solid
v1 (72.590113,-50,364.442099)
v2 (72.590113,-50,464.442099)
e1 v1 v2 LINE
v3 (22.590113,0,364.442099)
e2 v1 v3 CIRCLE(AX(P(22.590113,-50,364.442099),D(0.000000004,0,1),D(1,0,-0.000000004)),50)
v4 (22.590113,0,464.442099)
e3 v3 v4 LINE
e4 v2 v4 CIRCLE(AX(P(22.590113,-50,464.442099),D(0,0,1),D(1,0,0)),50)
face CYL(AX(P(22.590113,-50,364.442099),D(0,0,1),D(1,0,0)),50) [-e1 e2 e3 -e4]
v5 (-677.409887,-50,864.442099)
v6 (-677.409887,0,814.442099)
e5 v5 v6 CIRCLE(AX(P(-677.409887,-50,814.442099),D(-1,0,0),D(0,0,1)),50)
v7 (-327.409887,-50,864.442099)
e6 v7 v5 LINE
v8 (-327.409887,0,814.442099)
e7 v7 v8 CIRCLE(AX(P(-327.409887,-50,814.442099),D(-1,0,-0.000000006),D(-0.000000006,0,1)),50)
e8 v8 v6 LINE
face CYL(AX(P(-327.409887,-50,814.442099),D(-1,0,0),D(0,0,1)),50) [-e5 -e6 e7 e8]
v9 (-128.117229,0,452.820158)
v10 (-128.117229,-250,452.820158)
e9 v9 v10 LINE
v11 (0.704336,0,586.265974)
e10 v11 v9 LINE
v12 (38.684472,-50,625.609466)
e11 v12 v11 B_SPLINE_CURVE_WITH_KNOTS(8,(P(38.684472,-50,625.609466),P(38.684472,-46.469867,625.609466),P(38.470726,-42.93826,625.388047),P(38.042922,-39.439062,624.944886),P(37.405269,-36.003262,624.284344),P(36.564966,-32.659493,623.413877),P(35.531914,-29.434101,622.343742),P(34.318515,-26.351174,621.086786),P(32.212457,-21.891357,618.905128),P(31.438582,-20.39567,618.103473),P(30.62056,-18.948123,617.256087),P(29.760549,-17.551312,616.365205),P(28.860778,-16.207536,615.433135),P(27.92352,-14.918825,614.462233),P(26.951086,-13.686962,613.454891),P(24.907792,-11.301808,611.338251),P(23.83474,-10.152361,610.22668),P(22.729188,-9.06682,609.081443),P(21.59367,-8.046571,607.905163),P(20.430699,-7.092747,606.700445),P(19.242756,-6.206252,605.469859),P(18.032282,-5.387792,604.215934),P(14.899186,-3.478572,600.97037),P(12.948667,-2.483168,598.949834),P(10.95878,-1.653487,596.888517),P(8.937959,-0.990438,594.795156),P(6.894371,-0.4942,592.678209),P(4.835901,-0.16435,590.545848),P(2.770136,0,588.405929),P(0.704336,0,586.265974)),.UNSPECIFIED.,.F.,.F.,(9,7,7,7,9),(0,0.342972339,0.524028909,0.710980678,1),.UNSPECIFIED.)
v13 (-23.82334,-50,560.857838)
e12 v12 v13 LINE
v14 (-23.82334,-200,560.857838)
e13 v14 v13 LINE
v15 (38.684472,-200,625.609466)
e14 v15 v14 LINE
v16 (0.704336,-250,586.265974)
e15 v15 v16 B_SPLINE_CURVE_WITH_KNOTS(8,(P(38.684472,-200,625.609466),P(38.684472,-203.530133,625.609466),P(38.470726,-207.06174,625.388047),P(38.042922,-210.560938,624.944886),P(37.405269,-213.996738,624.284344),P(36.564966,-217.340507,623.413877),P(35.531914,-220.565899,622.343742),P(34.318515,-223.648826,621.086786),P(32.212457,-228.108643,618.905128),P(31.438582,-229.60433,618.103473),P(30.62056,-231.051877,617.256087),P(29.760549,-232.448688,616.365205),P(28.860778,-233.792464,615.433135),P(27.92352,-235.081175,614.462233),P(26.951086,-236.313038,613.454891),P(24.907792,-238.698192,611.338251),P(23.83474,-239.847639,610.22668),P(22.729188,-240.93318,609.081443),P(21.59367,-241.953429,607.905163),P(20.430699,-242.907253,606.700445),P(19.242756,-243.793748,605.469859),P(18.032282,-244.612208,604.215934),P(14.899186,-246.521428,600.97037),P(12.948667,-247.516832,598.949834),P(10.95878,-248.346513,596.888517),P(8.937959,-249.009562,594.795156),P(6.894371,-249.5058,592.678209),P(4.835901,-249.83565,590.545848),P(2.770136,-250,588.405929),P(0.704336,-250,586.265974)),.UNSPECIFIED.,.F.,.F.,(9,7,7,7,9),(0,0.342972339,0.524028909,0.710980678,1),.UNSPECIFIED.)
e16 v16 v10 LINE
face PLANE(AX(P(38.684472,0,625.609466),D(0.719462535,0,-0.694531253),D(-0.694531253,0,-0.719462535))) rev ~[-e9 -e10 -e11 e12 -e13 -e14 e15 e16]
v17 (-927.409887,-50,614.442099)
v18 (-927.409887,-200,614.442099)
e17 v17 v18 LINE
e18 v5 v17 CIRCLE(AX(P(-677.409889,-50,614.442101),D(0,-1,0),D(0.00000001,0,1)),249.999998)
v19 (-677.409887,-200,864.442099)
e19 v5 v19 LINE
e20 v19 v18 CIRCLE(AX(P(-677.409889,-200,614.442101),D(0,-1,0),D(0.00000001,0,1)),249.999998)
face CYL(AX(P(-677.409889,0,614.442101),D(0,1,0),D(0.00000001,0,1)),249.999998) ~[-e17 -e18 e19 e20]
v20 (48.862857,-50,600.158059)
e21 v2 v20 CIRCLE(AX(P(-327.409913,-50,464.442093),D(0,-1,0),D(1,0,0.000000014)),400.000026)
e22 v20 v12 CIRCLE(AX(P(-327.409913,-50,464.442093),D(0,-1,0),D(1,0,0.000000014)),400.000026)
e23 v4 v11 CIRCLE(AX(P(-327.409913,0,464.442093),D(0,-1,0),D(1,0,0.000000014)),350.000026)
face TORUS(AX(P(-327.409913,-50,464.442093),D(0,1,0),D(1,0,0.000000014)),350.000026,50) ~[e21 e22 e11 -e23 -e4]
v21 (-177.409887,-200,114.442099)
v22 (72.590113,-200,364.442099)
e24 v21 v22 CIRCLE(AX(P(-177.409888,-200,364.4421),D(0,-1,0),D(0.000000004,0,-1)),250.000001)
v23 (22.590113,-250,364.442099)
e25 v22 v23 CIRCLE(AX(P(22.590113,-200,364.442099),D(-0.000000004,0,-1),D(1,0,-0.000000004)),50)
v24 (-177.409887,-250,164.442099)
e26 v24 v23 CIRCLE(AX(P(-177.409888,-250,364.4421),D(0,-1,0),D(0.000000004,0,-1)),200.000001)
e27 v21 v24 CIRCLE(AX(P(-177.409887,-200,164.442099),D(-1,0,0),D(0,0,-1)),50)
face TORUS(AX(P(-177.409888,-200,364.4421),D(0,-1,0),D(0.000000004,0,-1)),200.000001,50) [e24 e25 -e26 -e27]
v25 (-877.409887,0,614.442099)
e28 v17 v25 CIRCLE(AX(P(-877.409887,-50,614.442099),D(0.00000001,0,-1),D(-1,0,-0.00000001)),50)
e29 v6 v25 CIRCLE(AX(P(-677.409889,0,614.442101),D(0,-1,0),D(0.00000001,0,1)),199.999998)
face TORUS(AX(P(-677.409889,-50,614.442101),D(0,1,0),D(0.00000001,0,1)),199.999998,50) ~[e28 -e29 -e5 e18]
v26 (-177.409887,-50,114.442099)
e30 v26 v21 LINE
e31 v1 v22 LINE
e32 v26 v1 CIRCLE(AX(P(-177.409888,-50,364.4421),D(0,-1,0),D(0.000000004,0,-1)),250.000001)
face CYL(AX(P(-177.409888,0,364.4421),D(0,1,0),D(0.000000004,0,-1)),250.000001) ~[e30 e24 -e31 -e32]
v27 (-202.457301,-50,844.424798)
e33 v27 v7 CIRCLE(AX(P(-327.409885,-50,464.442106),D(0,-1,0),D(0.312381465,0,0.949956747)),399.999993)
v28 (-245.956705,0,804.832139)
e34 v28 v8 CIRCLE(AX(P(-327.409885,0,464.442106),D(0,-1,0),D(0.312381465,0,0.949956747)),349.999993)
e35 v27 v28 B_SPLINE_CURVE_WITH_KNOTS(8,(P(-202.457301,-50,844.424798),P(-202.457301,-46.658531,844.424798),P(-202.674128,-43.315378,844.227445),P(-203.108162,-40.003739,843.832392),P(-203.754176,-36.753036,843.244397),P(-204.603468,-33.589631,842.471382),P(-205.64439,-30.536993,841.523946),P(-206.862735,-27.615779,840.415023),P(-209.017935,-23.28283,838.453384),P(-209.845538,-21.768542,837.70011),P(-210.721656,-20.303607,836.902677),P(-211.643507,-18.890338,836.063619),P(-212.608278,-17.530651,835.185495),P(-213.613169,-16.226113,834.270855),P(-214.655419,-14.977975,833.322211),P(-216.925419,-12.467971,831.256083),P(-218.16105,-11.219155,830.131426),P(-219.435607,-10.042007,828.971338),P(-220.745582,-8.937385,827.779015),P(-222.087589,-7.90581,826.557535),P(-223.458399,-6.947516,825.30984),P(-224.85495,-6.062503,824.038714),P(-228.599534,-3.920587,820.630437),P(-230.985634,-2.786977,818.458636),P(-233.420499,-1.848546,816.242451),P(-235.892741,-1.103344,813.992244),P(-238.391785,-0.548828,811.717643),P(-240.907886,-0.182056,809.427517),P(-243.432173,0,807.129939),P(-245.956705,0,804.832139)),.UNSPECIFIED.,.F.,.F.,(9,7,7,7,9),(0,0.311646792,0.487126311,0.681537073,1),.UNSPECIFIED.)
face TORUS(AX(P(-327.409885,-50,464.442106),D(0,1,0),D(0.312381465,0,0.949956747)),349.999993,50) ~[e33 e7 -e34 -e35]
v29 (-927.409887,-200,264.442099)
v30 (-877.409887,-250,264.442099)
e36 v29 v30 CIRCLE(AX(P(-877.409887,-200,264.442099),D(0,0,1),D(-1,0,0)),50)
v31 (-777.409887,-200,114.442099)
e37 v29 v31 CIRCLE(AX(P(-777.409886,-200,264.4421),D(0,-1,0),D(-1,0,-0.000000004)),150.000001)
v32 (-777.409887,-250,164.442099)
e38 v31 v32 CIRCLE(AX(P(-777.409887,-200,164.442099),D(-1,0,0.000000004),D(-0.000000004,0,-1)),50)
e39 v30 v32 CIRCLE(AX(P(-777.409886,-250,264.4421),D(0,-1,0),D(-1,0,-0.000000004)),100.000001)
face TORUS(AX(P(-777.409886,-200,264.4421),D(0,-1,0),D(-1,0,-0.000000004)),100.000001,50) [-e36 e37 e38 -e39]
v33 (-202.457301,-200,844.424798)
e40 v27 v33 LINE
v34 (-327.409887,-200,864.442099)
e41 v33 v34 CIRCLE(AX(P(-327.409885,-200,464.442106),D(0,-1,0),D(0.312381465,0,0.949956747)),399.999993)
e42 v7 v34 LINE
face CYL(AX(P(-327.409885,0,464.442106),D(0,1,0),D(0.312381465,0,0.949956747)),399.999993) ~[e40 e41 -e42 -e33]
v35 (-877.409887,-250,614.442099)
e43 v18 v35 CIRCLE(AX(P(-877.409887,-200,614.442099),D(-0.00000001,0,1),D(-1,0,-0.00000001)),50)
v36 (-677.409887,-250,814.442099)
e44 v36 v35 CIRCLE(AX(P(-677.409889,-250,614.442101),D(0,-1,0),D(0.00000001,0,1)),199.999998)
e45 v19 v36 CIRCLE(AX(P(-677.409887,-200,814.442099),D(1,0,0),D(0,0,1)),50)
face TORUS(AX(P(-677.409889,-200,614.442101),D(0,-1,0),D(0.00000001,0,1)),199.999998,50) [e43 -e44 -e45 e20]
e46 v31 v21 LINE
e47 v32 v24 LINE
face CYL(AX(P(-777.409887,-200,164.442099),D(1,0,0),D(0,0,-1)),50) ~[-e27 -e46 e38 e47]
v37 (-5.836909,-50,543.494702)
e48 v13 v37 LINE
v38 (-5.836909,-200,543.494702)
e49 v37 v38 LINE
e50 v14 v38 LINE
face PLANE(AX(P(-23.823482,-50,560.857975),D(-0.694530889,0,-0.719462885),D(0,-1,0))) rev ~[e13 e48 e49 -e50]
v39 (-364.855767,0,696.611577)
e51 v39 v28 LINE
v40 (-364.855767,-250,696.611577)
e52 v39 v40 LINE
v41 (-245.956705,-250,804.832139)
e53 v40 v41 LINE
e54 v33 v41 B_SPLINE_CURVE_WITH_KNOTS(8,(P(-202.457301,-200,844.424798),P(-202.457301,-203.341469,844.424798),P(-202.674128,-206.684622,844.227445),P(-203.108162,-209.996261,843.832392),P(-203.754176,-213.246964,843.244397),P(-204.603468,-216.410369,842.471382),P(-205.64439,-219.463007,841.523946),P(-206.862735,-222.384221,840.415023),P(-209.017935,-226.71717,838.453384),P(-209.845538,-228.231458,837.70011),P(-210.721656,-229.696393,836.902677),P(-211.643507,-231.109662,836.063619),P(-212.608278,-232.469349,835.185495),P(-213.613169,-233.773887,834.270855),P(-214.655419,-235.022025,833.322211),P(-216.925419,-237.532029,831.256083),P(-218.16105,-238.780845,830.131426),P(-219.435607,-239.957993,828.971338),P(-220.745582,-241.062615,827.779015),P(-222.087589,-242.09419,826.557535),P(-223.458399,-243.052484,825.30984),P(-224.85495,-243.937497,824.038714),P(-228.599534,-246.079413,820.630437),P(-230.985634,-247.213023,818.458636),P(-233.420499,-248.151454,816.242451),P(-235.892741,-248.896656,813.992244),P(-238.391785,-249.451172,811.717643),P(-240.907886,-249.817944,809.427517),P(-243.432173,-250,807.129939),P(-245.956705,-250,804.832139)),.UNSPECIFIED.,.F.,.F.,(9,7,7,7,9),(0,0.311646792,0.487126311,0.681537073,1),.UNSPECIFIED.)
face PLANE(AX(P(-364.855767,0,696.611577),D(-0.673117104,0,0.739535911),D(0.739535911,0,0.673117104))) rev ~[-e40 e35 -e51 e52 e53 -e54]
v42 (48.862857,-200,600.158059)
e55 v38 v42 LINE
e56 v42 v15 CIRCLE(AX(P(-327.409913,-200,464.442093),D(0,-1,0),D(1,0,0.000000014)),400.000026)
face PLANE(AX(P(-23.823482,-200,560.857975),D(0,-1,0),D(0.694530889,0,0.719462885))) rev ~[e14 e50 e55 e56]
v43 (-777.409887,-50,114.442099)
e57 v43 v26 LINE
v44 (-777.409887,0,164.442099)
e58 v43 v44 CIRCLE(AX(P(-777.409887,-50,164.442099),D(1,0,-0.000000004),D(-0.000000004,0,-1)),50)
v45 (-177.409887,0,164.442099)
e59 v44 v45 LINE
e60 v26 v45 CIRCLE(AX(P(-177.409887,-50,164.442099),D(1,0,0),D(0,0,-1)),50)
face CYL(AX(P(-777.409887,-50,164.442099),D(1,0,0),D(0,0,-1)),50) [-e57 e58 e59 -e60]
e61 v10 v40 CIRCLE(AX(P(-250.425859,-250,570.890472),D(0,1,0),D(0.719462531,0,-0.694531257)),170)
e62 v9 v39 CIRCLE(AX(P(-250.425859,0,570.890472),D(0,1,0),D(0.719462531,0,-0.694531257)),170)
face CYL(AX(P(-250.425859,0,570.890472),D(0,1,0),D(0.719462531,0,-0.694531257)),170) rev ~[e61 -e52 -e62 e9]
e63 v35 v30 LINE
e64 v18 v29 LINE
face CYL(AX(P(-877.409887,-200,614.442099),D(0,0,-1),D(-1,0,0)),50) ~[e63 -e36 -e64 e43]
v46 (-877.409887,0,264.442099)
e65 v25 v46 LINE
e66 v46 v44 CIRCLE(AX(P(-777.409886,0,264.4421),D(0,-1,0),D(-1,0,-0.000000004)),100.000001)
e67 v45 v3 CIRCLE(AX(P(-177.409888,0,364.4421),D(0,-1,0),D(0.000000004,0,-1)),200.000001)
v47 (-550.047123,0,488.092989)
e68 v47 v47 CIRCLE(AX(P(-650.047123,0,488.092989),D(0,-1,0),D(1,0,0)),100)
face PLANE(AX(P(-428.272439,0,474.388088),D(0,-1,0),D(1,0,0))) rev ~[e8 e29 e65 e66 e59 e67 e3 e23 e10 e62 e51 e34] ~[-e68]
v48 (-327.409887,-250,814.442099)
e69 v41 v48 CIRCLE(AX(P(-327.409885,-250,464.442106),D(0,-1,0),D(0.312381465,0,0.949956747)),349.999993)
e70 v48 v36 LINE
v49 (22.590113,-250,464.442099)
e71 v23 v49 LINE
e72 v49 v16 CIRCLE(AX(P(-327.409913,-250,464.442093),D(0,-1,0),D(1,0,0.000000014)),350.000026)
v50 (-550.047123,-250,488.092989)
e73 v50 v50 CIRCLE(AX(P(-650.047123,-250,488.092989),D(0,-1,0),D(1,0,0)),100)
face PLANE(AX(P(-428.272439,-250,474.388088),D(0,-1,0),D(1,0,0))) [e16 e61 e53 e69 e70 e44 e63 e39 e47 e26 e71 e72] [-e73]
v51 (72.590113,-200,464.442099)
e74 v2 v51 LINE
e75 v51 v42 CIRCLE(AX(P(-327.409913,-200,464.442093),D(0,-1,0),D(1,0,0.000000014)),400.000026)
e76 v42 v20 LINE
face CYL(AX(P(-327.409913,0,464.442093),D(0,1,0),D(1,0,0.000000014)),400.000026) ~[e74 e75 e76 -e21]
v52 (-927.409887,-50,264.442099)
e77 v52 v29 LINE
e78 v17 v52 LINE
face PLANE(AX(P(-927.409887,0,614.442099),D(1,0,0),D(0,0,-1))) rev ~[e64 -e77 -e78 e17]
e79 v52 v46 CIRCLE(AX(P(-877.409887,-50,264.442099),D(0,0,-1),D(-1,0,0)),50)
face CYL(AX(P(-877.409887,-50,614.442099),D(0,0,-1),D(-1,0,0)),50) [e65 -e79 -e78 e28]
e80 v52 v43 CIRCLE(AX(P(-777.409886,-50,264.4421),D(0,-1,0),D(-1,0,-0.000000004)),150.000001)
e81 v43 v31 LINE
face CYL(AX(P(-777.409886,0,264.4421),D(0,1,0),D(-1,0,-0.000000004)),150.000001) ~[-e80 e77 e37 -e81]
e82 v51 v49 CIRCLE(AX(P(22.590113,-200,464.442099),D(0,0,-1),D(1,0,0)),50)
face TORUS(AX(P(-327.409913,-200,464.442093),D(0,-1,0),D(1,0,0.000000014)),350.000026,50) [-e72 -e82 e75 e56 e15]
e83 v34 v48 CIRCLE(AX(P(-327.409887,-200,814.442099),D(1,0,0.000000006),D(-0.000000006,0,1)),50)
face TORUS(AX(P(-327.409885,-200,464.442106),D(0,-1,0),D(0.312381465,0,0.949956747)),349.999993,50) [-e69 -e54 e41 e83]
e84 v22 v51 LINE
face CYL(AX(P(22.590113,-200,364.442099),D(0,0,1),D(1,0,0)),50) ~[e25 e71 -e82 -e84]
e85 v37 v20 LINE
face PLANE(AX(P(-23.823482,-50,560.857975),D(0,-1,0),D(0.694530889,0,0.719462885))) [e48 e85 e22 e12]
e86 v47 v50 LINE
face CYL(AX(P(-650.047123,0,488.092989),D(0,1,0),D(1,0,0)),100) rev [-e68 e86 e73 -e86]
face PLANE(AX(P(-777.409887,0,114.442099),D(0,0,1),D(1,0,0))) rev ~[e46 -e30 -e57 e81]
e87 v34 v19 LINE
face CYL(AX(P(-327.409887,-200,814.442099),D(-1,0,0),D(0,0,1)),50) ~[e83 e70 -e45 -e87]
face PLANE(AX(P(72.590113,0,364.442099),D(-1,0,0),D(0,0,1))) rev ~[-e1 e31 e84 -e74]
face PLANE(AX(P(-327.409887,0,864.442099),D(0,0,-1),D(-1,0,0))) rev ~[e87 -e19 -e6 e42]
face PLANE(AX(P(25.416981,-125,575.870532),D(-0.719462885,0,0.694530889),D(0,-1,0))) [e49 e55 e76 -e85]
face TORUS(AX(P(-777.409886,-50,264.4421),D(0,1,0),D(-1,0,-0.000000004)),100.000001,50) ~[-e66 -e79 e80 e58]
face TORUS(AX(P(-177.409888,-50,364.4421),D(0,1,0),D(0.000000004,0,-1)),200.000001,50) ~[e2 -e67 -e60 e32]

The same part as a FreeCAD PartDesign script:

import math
import FreeCAD as App
import Part
import Sketcher
Q = App.Units.Quantity


def edges_at(feature, points):
    """Names of the edges that pass closest to the given points."""
    edges = feature.Shape.Edges
    near = lambda p: min(range(len(edges)), key=lambda i: edges[i].distToShape(Part.Vertex(*p))[0])
    return sorted({f"Edge{near(p) + 1}" for p in points})


def add_polygon(sketch, points):
    """Adds a closed chain of lines whose ends are joined by coincident constraints."""
    first, n = sketch.GeometryCount, len(points)
    for a, b in zip(points, points[1:] + points[:1]):
        sketch.addGeometry(Part.LineSegment(App.Vector(*a, 0), App.Vector(*b, 0)), False)
    for i in range(n):
        sketch.addConstraint(Sketcher.Constraint("Coincident", first + i, 2, first + (i + 1) % n, 1))

doc = App.newDocument("Part")
body = doc.addObject("PartDesign::Body", "Body")

# Sketch on XZ plane
sketch1 = body.newObject("Sketcher::SketchObject", "Sketch")
sketch1.AttachmentSupport = (doc.getObject("XZ_Plane"), [""])
sketch1.MapMode = "FlatFace"
sketch1.addGeometry([
    Part.LineSegment(App.Vector(-327, 864, 0), App.Vector(-677, 864, 0)),  # 0
    Part.ArcOfCircle(Part.Circle(App.Vector(-677, 614, 0), App.Vector(0, 0, 1), 250), math.radians(90), math.radians(180)),  # 1
    Part.LineSegment(App.Vector(-927, 614, 0), App.Vector(-927, 264, 0)),  # 2
    Part.ArcOfCircle(Part.Circle(App.Vector(-777, 264, 0), App.Vector(0, 0, 1), 150), math.radians(-180), math.radians(-90)),  # 3
    Part.LineSegment(App.Vector(-777, 114, 0), App.Vector(-177, 114, 0)),  # 4
    Part.ArcOfCircle(Part.Circle(App.Vector(-177, 364, 0), App.Vector(0, 0, 1), 250), math.radians(-90), math.radians(0)),  # 5
    Part.LineSegment(App.Vector(73, 364, 0), App.Vector(73, 464, 0)),  # 6
    Part.ArcOfCircle(Part.Circle(App.Vector(-327, 464, 0), App.Vector(0, 0, 1), 400), math.radians(0), math.radians(24)),  # 7
    Part.LineSegment(App.Vector(39, 626, 0), App.Vector(-128, 453, 0)),  # 8
    Part.ArcOfCircle(Part.Circle(App.Vector(-250, 571, 0), App.Vector(0, 0, 1), 170), math.radians(132), math.radians(316)),  # 9
    Part.LineSegment(App.Vector(-365, 697, 0), App.Vector(-202, 844, 0)),  # 10
    Part.ArcOfCircle(Part.Circle(App.Vector(-327, 464, 0), App.Vector(0, 0, 1), 400), math.radians(71.8), math.radians(90)),  # 11
    Part.Circle(App.Vector(-650, 488, 0), App.Vector(0, 0, 1), 100),  # 12
], False)
sketch1.addConstraint([
    Sketcher.Constraint("Tangent", 0, 2, 1, 1),
    Sketcher.Constraint("Tangent", 1, 2, 2, 1),
    Sketcher.Constraint("Tangent", 2, 2, 3, 1),
    Sketcher.Constraint("Tangent", 3, 2, 4, 1),
    Sketcher.Constraint("Tangent", 4, 2, 5, 1),
    Sketcher.Constraint("Tangent", 5, 2, 6, 1),
    Sketcher.Constraint("Tangent", 6, 2, 7, 1),
    Sketcher.Constraint("Coincident", 7, 2, 8, 1),
    Sketcher.Constraint("Tangent", 8, 2, 9, 2),
    Sketcher.Constraint("Tangent", 9, 1, 10, 1),
    Sketcher.Constraint("Coincident", 10, 2, 11, 1),
    Sketcher.Constraint("Tangent", 11, 2, 0, 1),
    Sketcher.Constraint("Horizontal", 0),
    Sketcher.Constraint("Vertical", 2),
    Sketcher.Constraint("Horizontal", 4),
    Sketcher.Constraint("Vertical", 6),
    Sketcher.Constraint("Equal", 0, 2),
    Sketcher.Constraint("Diameter", 12, Q("200 mm")),
    Sketcher.Constraint("Radius", 3, Q("150.000001 mm")),
    Sketcher.Constraint("Radius", 5, Q("250.000001 mm")),
    Sketcher.Constraint("Radius", 9, Q("170 mm")),
    Sketcher.Constraint("DistanceX", 0, 2, 0, 1, Q("350 mm")),
    Sketcher.Constraint("DistanceX", 4, 1, 4, 2, Q("600 mm")),
    Sketcher.Constraint("DistanceY", 6, 1, 6, 2, Q("100 mm")),
    Sketcher.Constraint("DistanceX", 1, 3, 5, 3, Q("500.000001 mm")),
    Sketcher.Constraint("Radius", 7, Q("400.000026 mm")),
    Sketcher.Constraint("Radius", 11, Q("399.999993 mm")),
    Sketcher.Constraint("DistanceY", -1, 1, 1, 3, Q("614.442101 mm")),
    Sketcher.Constraint("DistanceX", 10, 2, -1, 1, Q("202.457301 mm")),
    Sketcher.Constraint("DistanceY", -1, 1, 10, 2, Q("844.424798 mm")),
    Sketcher.Constraint("DistanceX", 9, 3, -1, 1, Q("250.425859 mm")),
    Sketcher.Constraint("DistanceY", -1, 1, 9, 3, Q("570.890472 mm")),
    Sketcher.Constraint("DistanceY", -1, 1, 12, 3, Q("488.092989 mm")),
    Sketcher.Constraint("DistanceX", 8, 2, -1, 1, Q("128.117229 mm")),
    Sketcher.Constraint("DistanceX", 12, 3, 7, 3, Q("322.63721 mm")),
])
pad1 = body.newObject("PartDesign::Pad", "Pad")
pad1.Profile = sketch1
pad1.Length = 250
doc.recompute()

fillet = body.newObject("PartDesign::Fillet", "Fillet")
fillet.Base = (pad1, edges_at(pad1, [(-502.41, -250, 864.442), (-502.41, 0, 864.442)]))
fillet.Radius = 50

# Sketch on an angled plane
sketch2 = body.newObject("Sketcher::SketchObject", "Sketch001")
sketch2.Placement = App.Placement(App.Vector(-292.586202, 0, 282.447316), App.Rotation(App.Vector(0, -1, 0), App.Vector(0.694530889, 0, 0.719462885), App.Vector(-0.719462885, 0, 0.694530889), "ZXY"))
add_polygon(sketch2, [(50, 477), (50, 387), (200, 387), (200, 477)])  # lines 0-3
sketch2.addConstraint([
    Sketcher.Constraint("Vertical", 0),
    Sketcher.Constraint("Horizontal", 1),
    Sketcher.Constraint("Vertical", 2),
    Sketcher.Constraint("Horizontal", 3),
    Sketcher.Constraint("DistanceX", 1, 1, 1, 2, Q("150 mm")),
    Sketcher.Constraint("DistanceY", 0, 2, 0, 1, Q("90 mm")),
    Sketcher.Constraint("DistanceX", -1, 1, 0, 2, Q("50 mm")),
    Sketcher.Constraint("DistanceY", -1, 1, 0, 2, Q("386.970146 mm")),
])
pocket1 = body.newObject("PartDesign::Pocket", "Pocket")
pocket1.Profile = sketch2
pocket1.Length = 25

doc.recompute()
